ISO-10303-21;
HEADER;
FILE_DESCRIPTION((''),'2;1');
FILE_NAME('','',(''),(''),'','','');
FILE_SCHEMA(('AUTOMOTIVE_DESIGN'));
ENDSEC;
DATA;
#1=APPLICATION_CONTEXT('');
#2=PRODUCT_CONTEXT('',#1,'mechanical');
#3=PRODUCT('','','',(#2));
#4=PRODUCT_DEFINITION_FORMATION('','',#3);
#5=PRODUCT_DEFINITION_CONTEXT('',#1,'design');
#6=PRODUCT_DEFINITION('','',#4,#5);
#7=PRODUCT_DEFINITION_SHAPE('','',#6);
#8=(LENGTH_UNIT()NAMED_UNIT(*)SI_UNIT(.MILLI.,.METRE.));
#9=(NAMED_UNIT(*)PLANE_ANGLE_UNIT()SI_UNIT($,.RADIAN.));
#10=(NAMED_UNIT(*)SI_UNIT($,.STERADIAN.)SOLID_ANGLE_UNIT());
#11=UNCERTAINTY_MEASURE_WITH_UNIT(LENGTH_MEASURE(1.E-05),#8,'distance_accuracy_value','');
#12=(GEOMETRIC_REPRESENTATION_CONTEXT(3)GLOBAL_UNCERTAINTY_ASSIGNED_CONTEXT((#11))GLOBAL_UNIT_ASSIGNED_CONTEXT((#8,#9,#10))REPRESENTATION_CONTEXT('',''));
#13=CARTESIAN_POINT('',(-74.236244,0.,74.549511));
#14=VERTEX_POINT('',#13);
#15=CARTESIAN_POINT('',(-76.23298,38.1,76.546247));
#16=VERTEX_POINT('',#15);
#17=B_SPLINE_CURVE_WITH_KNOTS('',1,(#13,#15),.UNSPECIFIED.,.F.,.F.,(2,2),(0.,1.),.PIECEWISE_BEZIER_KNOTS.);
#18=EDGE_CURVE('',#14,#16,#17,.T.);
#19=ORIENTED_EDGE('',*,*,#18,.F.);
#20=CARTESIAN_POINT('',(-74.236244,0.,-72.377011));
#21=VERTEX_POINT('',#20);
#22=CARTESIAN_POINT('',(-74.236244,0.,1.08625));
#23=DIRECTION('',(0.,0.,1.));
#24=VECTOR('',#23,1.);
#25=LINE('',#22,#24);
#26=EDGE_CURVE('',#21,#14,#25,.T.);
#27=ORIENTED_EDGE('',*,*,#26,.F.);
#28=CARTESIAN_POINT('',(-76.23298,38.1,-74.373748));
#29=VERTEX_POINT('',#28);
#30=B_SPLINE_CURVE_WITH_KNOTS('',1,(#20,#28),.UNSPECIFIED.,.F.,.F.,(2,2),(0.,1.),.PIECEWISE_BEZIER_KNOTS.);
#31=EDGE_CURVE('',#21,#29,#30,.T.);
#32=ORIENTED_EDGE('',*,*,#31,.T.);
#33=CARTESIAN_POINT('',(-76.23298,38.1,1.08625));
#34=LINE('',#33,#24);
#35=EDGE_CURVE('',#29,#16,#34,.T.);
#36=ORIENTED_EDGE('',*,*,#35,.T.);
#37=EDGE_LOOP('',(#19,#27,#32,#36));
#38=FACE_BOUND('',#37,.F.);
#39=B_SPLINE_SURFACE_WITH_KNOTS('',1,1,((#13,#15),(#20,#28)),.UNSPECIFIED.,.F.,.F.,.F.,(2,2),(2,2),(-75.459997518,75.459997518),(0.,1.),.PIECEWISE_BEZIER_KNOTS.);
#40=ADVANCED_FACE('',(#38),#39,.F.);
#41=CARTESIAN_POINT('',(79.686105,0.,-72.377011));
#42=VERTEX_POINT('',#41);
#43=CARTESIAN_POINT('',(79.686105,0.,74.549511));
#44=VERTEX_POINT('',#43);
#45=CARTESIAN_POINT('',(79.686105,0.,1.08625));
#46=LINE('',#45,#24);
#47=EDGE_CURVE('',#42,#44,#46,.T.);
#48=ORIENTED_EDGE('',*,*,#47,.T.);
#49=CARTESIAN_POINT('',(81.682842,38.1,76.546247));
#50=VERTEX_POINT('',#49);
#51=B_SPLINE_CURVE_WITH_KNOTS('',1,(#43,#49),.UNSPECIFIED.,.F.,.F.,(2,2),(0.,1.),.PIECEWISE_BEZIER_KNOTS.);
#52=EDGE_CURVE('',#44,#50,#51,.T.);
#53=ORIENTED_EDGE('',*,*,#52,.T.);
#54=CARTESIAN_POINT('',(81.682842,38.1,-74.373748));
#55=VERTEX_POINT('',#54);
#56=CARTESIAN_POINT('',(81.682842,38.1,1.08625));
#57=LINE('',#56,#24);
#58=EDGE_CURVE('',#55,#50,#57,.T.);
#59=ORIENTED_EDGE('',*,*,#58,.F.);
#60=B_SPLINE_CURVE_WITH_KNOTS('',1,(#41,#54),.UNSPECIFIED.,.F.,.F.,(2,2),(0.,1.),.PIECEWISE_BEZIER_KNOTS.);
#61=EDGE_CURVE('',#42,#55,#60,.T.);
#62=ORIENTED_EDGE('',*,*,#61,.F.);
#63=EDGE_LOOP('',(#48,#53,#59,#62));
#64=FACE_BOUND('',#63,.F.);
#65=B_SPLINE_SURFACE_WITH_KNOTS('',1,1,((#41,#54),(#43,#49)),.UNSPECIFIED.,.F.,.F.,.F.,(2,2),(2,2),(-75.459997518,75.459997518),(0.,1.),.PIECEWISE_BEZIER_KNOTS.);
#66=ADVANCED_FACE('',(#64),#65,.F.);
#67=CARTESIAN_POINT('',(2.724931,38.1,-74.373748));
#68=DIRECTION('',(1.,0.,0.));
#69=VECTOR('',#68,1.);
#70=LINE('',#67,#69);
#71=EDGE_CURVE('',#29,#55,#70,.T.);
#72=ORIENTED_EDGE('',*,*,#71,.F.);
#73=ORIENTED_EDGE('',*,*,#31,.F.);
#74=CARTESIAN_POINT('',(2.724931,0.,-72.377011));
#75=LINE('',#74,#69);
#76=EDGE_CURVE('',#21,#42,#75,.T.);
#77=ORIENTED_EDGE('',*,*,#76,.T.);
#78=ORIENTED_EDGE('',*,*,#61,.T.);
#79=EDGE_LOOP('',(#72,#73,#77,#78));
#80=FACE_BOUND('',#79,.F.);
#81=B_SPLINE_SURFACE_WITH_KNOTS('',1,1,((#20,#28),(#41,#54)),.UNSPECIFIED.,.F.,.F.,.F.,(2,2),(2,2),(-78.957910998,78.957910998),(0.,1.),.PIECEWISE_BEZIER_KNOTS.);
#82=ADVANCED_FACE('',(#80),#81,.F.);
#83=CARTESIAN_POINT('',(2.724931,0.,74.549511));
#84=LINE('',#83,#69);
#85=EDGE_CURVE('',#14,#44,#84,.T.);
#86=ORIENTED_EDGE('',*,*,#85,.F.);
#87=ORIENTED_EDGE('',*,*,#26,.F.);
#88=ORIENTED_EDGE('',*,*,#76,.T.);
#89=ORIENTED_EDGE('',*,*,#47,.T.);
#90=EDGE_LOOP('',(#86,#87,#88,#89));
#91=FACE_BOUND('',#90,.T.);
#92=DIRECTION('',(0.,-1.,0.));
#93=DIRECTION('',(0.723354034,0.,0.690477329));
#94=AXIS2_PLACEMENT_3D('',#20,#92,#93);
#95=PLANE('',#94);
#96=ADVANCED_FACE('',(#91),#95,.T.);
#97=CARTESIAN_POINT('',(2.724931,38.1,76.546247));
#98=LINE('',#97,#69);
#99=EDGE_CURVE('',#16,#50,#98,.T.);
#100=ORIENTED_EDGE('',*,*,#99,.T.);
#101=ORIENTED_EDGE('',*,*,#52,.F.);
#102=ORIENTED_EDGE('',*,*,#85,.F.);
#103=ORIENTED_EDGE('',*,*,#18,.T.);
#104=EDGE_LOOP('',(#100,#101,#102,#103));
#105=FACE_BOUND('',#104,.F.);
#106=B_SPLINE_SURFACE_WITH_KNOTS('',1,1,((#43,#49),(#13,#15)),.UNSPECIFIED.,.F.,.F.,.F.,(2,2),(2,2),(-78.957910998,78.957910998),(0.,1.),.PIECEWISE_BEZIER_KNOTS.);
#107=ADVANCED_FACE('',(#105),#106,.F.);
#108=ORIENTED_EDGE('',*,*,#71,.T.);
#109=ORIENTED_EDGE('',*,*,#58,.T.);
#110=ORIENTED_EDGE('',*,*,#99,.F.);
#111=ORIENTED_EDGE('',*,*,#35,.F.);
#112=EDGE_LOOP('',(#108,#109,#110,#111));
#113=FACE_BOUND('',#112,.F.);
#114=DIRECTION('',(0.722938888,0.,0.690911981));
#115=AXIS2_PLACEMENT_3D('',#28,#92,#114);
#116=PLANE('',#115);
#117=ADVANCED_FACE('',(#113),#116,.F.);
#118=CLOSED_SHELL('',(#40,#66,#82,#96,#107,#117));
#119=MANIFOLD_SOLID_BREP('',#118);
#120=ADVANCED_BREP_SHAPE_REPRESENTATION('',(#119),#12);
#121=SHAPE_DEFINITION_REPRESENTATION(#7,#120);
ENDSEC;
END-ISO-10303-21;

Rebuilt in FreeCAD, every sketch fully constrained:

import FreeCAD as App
import Part
import Sketcher


def add_polygon(sketch, points):
    """Adds a closed chain of lines whose ends are joined by coincident constraints."""
    first, n = sketch.GeometryCount, len(points)
    for a, b in zip(points, points[1:] + points[:1]):
        sketch.addGeometry(Part.LineSegment(App.Vector(*a, 0), App.Vector(*b, 0)), False)
    for i in range(n):
        sketch.addConstraint(Sketcher.Constraint("Coincident", first + i, 2, first + (i + 1) % n, 1))

doc = App.newDocument("Part")
params = doc.addObject("Spreadsheet::Sheet", "Params")
for row, (alias, value) in enumerate([
    ("pad1_length", "1.5 in"),
    ("pad1_taper", "3 deg"),
], start=1):
    params.set(f"A{row}", alias)
    params.set(f"B{row}", "=" + value)
    params.setAlias(f"B{row}", alias)

body = doc.addObject("PartDesign::Body", "Body")

# Sketch on XZ plane
sketch1 = body.newObject("Sketcher::SketchObject", "Sketch")
sketch1.AttachmentSupport = (doc.getObject("XZ_Plane"), [""])
sketch1.MapMode = "FlatFace"
add_polygon(sketch1, [(-74, 75), (-74, -72), (80, -72), (80, 75)])  # lines 0-3
sketch1.addConstraint(Sketcher.Constraint("Vertical", 0))
sketch1.addConstraint(Sketcher.Constraint("Horizontal", 1))
sketch1.addConstraint(Sketcher.Constraint("Vertical", 2))
sketch1.addConstraint(Sketcher.Constraint("Horizontal", 3))
sketch1.addConstraint(Sketcher.Constraint("DistanceX", 1, 1, 1, 2, 153.922349))
sketch1.addConstraint(Sketcher.Constraint("DistanceY", 0, 2, 0, 1, 146.926522))
sketch1.addConstraint(Sketcher.Constraint("DistanceY", 0, 2, -1, 1, 72.377011))
sketch1.addConstraint(Sketcher.Constraint("DistanceX", 0, 2, -1, 1, 74.236244))
pad1 = body.newObject("PartDesign::Pad", "Pad")
pad1.Profile = sketch1
pad1.setExpression("Length", "Params.pad1_length")
pad1.Reversed = True
pad1.setExpression("TaperAngle", "Params.pad1_taper")

doc.recompute()
